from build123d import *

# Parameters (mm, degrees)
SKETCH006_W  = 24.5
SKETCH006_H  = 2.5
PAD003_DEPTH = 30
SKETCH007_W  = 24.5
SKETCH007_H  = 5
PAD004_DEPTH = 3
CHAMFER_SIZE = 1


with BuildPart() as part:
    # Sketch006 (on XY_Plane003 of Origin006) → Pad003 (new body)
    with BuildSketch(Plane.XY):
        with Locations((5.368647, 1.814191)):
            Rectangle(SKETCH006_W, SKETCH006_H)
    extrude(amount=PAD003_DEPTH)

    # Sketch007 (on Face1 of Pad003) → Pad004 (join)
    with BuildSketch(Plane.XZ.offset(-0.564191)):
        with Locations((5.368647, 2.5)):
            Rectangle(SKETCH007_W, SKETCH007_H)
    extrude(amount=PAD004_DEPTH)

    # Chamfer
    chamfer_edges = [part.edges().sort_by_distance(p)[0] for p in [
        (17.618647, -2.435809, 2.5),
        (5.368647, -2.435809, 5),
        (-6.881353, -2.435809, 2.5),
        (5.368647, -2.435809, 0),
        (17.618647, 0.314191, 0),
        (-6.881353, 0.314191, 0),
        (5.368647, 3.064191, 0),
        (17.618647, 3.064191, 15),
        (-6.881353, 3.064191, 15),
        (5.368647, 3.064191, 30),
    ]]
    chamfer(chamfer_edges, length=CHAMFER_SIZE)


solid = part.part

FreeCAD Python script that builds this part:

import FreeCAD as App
import Part
import Sketcher
from FreeCAD import Vector


def edges_at(feature, points):
    """Names of the edges that pass closest to the given points."""
    edges = feature.Shape.Edges
    near = lambda p: min(range(len(edges)), key=lambda i: edges[i].distToShape(Part.Vertex(*p))[0])
    return sorted({f"Edge{near(p) + 1}" for p in points})

doc = App.newDocument("Part")
body = doc.addObject("PartDesign::Body", "Body")

sketch1 = body.newObject("Sketcher::SketchObject", "Sketch")
sketch1.AttachmentSupport = (doc.getObject("XY_Plane"), [""])
sketch1.MapMode = "FlatFace"
sketch1.addGeometry(Part.LineSegment(Vector(-6.9, 3.1, 0), Vector(-6.9, 0.6, 0)), False)
sketch1.addGeometry(Part.LineSegment(Vector(-6.9, 0.6, 0), Vector(17.6, 0.6, 0)), False)
sketch1.addGeometry(Part.LineSegment(Vector(17.6, 0.6, 0), Vector(17.6, 3.1, 0)), False)
sketch1.addGeometry(Part.LineSegment(Vector(17.6, 3.1, 0), Vector(-6.9, 3.1, 0)), False)
sketch1.addConstraint(Sketcher.Constraint("Coincident", 0, 2, 1, 1))
sketch1.addConstraint(Sketcher.Constraint("Coincident", 1, 2, 2, 1))
sketch1.addConstraint(Sketcher.Constraint("Coincident", 2, 2, 3, 1))
sketch1.addConstraint(Sketcher.Constraint("Coincident", 3, 2, 0, 1))
sketch1.addConstraint(Sketcher.Constraint("Vertical", 0))
sketch1.addConstraint(Sketcher.Constraint("Horizontal", 1))
sketch1.addConstraint(Sketcher.Constraint("Vertical", 2))
sketch1.addConstraint(Sketcher.Constraint("Horizontal", 3))
sketch1.addConstraint(Sketcher.Constraint("DistanceX", 1, 1, 1, 2, 24.5))
sketch1.addConstraint(Sketcher.Constraint("DistanceY", 0, 2, 0, 1, 2.5))
sketch1.addConstraint(Sketcher.Constraint("DistanceY", -1, 1, 0, 2, 0.564191))
sketch1.addConstraint(Sketcher.Constraint("DistanceX", 0, 2, -1, 1, 6.881353))
pad1 = body.newObject("PartDesign::Pad", "Pad")
pad1.Profile = sketch1
pad1.Length = 30

sketch2 = body.newObject("Sketcher::SketchObject", "Sketch001")
sketch2.AttachmentSupport = (doc.getObject("XZ_Plane"), [""])
sketch2.MapMode = "FlatFace"
sketch2.AttachmentOffset = App.Placement(Vector(0, 0, -0.564191), App.Rotation())
sketch2.addGeometry(Part.LineSegment(Vector(-7, 5, 0), Vector(-7, 0, 0)), False)
sketch2.addGeometry(Part.LineSegment(Vector(-7, 0, 0), Vector(18, 0, 0)), False)
sketch2.addGeometry(Part.LineSegment(Vector(18, 0, 0), Vector(18, 5, 0)), False)
sketch2.addGeometry(Part.LineSegment(Vector(18, 5, 0), Vector(-7, 5, 0)), False)
sketch2.addConstraint(Sketcher.Constraint("Coincident", 0, 2, 1, 1))
sketch2.addConstraint(Sketcher.Constraint("Coincident", 1, 2, 2, 1))
sketch2.addConstraint(Sketcher.Constraint("Coincident", 2, 2, 3, 1))
sketch2.addConstraint(Sketcher.Constraint("Coincident", 3, 2, 0, 1))
sketch2.addConstraint(Sketcher.Constraint("Vertical", 0))
sketch2.addConstraint(Sketcher.Constraint("Horizontal", 1))
sketch2.addConstraint(Sketcher.Constraint("Vertical", 2))
sketch2.addConstraint(Sketcher.Constraint("Horizontal", 3))
sketch2.addConstraint(Sketcher.Constraint("PointOnObject", 0, 2, -1))
sketch2.addConstraint(Sketcher.Constraint("DistanceY", 0, 2, 0, 1, 5.0))
sketch2.addConstraint(Sketcher.Constraint("DistanceX", 1, 1, 1, 2, 24.5))
sketch2.addConstraint(Sketcher.Constraint("DistanceX", 0, 2, -1, 1, 6.881353))
pad2 = body.newObject("PartDesign::Pad", "Pad001")
pad2.Profile = sketch2
pad2.Length = 3
doc.recompute()

chamfer = body.newObject("PartDesign::Chamfer", "Chamfer")
chamfer.Base = (pad2, edges_at(pad2, [
    (17.619, -2.436, 2.5),
    (5.369, -2.436, 5),
    (-6.881, -2.436, 2.5),
    (5.369, -2.436, 0),
    (17.619, 0.314, 0),
    (-6.881, 0.314, 0),
    (5.369, 3.064, 0),
    (17.619, 3.064, 15),
    (-6.881, 3.064, 15),
    (5.369, 3.064, 30),
]))
chamfer.Size = 1

doc.recompute()
